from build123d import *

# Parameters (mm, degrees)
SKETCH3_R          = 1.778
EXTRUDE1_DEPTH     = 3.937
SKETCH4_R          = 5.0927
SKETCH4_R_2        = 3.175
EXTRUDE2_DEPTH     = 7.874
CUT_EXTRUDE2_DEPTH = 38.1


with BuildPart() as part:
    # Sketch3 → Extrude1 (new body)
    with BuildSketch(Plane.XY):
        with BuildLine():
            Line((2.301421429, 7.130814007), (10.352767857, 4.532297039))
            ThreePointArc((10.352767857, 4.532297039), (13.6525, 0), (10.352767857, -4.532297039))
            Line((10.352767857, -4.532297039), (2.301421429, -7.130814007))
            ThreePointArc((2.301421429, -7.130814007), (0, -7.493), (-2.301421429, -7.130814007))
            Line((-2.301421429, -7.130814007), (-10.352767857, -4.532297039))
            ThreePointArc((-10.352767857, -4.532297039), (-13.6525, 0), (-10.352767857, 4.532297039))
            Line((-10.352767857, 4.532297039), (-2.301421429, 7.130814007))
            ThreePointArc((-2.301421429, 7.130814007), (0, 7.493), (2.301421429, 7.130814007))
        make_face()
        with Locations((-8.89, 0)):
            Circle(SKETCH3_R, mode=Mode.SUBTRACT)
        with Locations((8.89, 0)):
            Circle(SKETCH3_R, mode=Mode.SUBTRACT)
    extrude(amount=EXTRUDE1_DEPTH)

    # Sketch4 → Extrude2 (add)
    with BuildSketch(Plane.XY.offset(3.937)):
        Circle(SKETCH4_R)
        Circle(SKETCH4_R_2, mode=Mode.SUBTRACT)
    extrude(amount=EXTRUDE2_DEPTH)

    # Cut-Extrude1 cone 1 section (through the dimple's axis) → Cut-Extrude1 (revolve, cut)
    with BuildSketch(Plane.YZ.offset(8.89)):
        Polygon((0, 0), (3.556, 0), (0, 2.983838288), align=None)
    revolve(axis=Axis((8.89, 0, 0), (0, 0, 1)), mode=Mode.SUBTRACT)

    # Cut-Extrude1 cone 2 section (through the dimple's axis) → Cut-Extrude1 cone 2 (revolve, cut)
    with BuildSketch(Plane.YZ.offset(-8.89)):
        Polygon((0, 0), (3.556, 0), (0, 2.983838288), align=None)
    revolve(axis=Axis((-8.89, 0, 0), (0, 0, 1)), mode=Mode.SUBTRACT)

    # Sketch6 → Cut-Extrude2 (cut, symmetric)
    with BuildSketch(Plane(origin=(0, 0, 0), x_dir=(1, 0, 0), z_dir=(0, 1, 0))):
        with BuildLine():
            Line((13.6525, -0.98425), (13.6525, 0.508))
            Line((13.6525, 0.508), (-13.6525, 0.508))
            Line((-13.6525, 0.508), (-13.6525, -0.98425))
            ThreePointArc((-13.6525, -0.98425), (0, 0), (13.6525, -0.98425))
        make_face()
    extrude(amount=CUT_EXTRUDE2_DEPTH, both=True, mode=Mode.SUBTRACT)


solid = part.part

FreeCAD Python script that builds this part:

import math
import FreeCAD as App
import Part
import Sketcher

V = App.Vector
Q = App.Units.Quantity

doc = App.newDocument("Part")
params = doc.addObject("Spreadsheet::Sheet", "Params")
for row, (alias, value) in enumerate([
    ("sketch1_diameter", "0.14 in"),
    ("sketch1_radius", "0.295 in"),
    ("sketch1_radius2", "0.1875 in"),
    ("pad1_length", "0.155 in"),
    ("sketch2_diameter", "0.25 in"),
    ("sketch2_diameter2", "0.401 in"),
    ("pad2_length", "0.31 in"),
    ("sketch3_width", "0.14 in"),
    ("groove_angle", "360 deg"),
    ("sketch4_width", "0.14 in"),
    ("groove2_angle", "360 deg"),
    ("sketch5_width", "1.075 in"),
    ("pocket1_length", "3 in"),
], start=1):
    params.set(f"A{row}", alias)
    params.set(f"B{row}", "=" + value)
    params.setAlias(f"B{row}", alias)

body = doc.addObject("PartDesign::Body", "Body")

sketch1 = body.newObject("Sketcher::SketchObject", "Sketch")
sketch1.AttachmentSupport = (doc.getObject("XY_Plane"), [""])
sketch1.MapMode = "FlatFace"
sketch1.addGeometry(Part.LineSegment(V(10.4, 4.5, 0), V(2.3, 7.1, 0)), False)
sketch1.addGeometry(Part.ArcOfCircle(Part.Circle(V(0, 0, 0), V(0, 0, 1), 7.5), math.radians(72), math.radians(108)), False)
sketch1.addGeometry(Part.LineSegment(V(-2.3, 7.1, 0), V(-10.4, 4.5, 0)), False)
sketch1.addGeometry(Part.ArcOfCircle(Part.Circle(V(-8.9, 0, 0), V(0, 0, 1), 4.8), math.radians(108), math.radians(252)), False)
sketch1.addGeometry(Part.LineSegment(V(-10.4, -4.5, 0), V(-2.3, -7.1, 0)), False)
sketch1.addGeometry(Part.ArcOfCircle(Part.Circle(V(0, 0, 0), V(0, 0, 1), 7.5), math.radians(-108), math.radians(-72)), False)
sketch1.addGeometry(Part.LineSegment(V(2.3, -7.1, 0), V(10.4, -4.5, 0)), False)
sketch1.addGeometry(Part.ArcOfCircle(Part.Circle(V(8.9, 0, 0), V(0, 0, 1), 4.8), math.radians(-72), math.radians(72)), False)
sketch1.addGeometry(Part.Circle(V(8.9, 0, 0), V(0, 0, 1), 1.8), False)
sketch1.addGeometry(Part.Circle(V(-8.9, 0, 0), V(0, 0, 1), 1.8), False)
sketch1.addConstraint(Sketcher.Constraint("Tangent", 0, 2, 1, 1))
sketch1.addConstraint(Sketcher.Constraint("Tangent", 1, 2, 2, 1))
sketch1.addConstraint(Sketcher.Constraint("Tangent", 2, 2, 3, 1))
sketch1.addConstraint(Sketcher.Constraint("Tangent", 3, 2, 4, 1))
sketch1.addConstraint(Sketcher.Constraint("Tangent", 4, 2, 5, 1))
sketch1.addConstraint(Sketcher.Constraint("Tangent", 5, 2, 6, 1))
sketch1.addConstraint(Sketcher.Constraint("Tangent", 6, 2, 7, 1))
sketch1.addConstraint(Sketcher.Constraint("Tangent", 7, 2, 0, 1))
sketch1.addConstraint(Sketcher.Constraint("Coincident", 1, 3, -1, 1))
sketch1.addConstraint(Sketcher.Constraint("Coincident", 5, 3, -1, 1))
sketch1.addConstraint(Sketcher.Constraint("Coincident", 8, 3, 7, 3))
sketch1.addConstraint(Sketcher.Constraint("Coincident", 9, 3, 3, 3))
sketch1.addConstraint(Sketcher.Constraint("Equal", 1, 5))
sketch1.addConstraint(Sketcher.Constraint("Equal", 3, 7))
sketch1.addConstraint(Sketcher.Constraint("Equal", 8, 9))
sketch1.addConstraint(Sketcher.Constraint("Symmetric", 3, 3, 7, 3, -1, 1))
sketch1.addConstraint(Sketcher.Constraint("PointOnObject", 3, 3, -1))
sketch1.addConstraint(Sketcher.Constraint("Diameter", 8, Q("0.14 in")))
sketch1.addConstraint(Sketcher.Constraint("Radius", 1, Q("0.295 in")))
sketch1.addConstraint(Sketcher.Constraint("Radius", 3, Q("0.1875 in")))
sketch1.addConstraint(Sketcher.Constraint("DistanceX", 3, 3, 7, 3, Q("0.7 in")))
sketch1.setExpression("Constraints[17]", "Params.sketch1_diameter")
sketch1.setExpression("Constraints[18]", "Params.sketch1_radius")
sketch1.setExpression("Constraints[19]", "Params.sketch1_radius2")
pad1 = body.newObject("PartDesign::Pad", "Pad")
pad1.Profile = sketch1
pad1.setExpression("Length", "Params.pad1_length")

sketch2 = body.newObject("Sketcher::SketchObject", "Sketch001")
sketch2.AttachmentSupport = (doc.getObject("XY_Plane"), [""])
sketch2.MapMode = "FlatFace"
sketch2.AttachmentOffset = App.Placement(V(0, 0, 0.155 * 25.4), App.Rotation())
sketch2.addGeometry(Part.Circle(V(0, 0, 0), V(0, 0, 1), 5.1), False)
sketch2.addGeometry(Part.Circle(V(0, 0, 0), V(0, 0, 1), 3.2), False)
sketch2.addConstraint(Sketcher.Constraint("Coincident", 0, 3, -1, 1))
sketch2.addConstraint(Sketcher.Constraint("Coincident", 1, 3, -1, 1))
sketch2.addConstraint(Sketcher.Constraint("Diameter", 1, Q("0.25 in")))
sketch2.addConstraint(Sketcher.Constraint("Diameter", 0, Q("0.401 in")))
sketch2.setExpression("Constraints[2]", "Params.sketch2_diameter")
sketch2.setExpression("Constraints[3]", "Params.sketch2_diameter2")
pad2 = body.newObject("PartDesign::Pad", "Pad001")
pad2.Profile = sketch2
pad2.setExpression("Length", "Params.pad2_length")

sketch3 = body.newObject("Sketcher::SketchObject", "Sketch002")
sketch3.AttachmentSupport = (doc.getObject("YZ_Plane"), [""])
sketch3.MapMode = "FlatFace"
sketch3.AttachmentOffset = App.Placement(V(0, 0, 0.35 * 25.4), App.Rotation())
sketch3.addGeometry(Part.LineSegment(V(0, 0, 0), V(3.6, 0, 0)), False)
sketch3.addGeometry(Part.LineSegment(V(3.6, 0, 0), V(0, 3, 0)), False)
sketch3.addGeometry(Part.LineSegment(V(0, 3, 0), V(0, 0, 0)), False)
sketch3.addConstraint(Sketcher.Constraint("Coincident", 0, 2, 1, 1))
sketch3.addConstraint(Sketcher.Constraint("Coincident", 1, 2, 2, 1))
sketch3.addConstraint(Sketcher.Constraint("Coincident", 2, 2, 0, 1))
sketch3.addConstraint(Sketcher.Constraint("Horizontal", 0))
sketch3.addConstraint(Sketcher.Constraint("Vertical", 2))
sketch3.addConstraint(Sketcher.Constraint("Coincident", 2, 2, -1, 1))
sketch3.addConstraint(Sketcher.Constraint("Angle", 1, Q("140 deg")))
sketch3.addConstraint(Sketcher.Constraint("DistanceX", 0, 1, 0, 2, Q("0.14 in")))
sketch3.setExpression("Constraints[7]", "Params.sketch3_width")
groove = body.newObject("PartDesign::Groove", "Groove")
groove.Profile = sketch3
groove.ReferenceAxis = (sketch3, ["V_Axis"])
groove.setExpression("Angle", "Params.groove_angle")

sketch4 = body.newObject("Sketcher::SketchObject", "Sketch003")
sketch4.AttachmentSupport = (doc.getObject("YZ_Plane"), [""])
sketch4.MapMode = "FlatFace"
sketch4.AttachmentOffset = App.Placement(V(0, 0, -0.35 * 25.4), App.Rotation())
sketch4.addGeometry(Part.LineSegment(V(0, 0, 0), V(3.6, 0, 0)), False)
sketch4.addGeometry(Part.LineSegment(V(3.6, 0, 0), V(0, 3, 0)), False)
sketch4.addGeometry(Part.LineSegment(V(0, 3, 0), V(0, 0, 0)), False)
sketch4.addConstraint(Sketcher.Constraint("Coincident", 0, 2, 1, 1))
sketch4.addConstraint(Sketcher.Constraint("Coincident", 1, 2, 2, 1))
sketch4.addConstraint(Sketcher.Constraint("Coincident", 2, 2, 0, 1))
sketch4.addConstraint(Sketcher.Constraint("Horizontal", 0))
sketch4.addConstraint(Sketcher.Constraint("Vertical", 2))
sketch4.addConstraint(Sketcher.Constraint("Coincident", 2, 2, -1, 1))
sketch4.addConstraint(Sketcher.Constraint("Angle", 1, Q("140 deg")))
sketch4.addConstraint(Sketcher.Constraint("DistanceX", 0, 1, 0, 2, Q("0.14 in")))
sketch4.setExpression("Constraints[7]", "Params.sketch4_width")
groove2 = body.newObject("PartDesign::Groove", "Groove001")
groove2.Profile = sketch4
groove2.ReferenceAxis = (sketch4, ["V_Axis"])
groove2.setExpression("Angle", "Params.groove2_angle")

sketch5 = body.newObject("Sketcher::SketchObject", "Sketch004")
sketch5.AttachmentSupport = (doc.getObject("XZ_Plane"), [""])
sketch5.MapMode = "FlatFace"
sketch5.addGeometry(Part.LineSegment(V(13.7, 1, 0), V(13.7, -0.5, 0)), False)
sketch5.addGeometry(Part.LineSegment(V(13.7, -0.5, 0), V(-13.7, -0.5, 0)), False)
sketch5.addGeometry(Part.LineSegment(V(-13.7, -0.5, 0), V(-13.7, 1, 0)), False)
sketch5.addGeometry(Part.ArcOfCircle(Part.Circle(V(0, 95.2, 0), V(0, 0, 1), 95.2), math.radians(-98.25), math.radians(-81.75)), False)
sketch5.addConstraint(Sketcher.Constraint("Coincident", 0, 2, 1, 1))
sketch5.addConstraint(Sketcher.Constraint("Coincident", 1, 2, 2, 1))
sketch5.addConstraint(Sketcher.Constraint("Coincident", 2, 2, 3, 1))
sketch5.addConstraint(Sketcher.Constraint("Coincident", 3, 2, 0, 1))
sketch5.addConstraint(Sketcher.Constraint("Vertical", 0))
sketch5.addConstraint(Sketcher.Constraint("Horizontal", 1))
sketch5.addConstraint(Sketcher.Constraint("Vertical", 2))
sketch5.addConstraint(Sketcher.Constraint("Symmetric", 2, 2, 3, 2, -2))
sketch5.addConstraint(Sketcher.Constraint("DistanceX", 1, 2, 1, 1, Q("1.075 in")))
sketch5.addConstraint(Sketcher.Constraint("DistanceY", 0, 2, -1, 1, Q("0.02 in")))
sketch5.addConstraint(Sketcher.Constraint("Radius", 3, Q("95.178819 mm")))
sketch5.addConstraint(Sketcher.Constraint("DistanceY", 0, 2, 0, 1, Q("1.49225 mm")))
sketch5.setExpression("Constraints[8]", "Params.sketch5_width")
pocket1 = body.newObject("PartDesign::Pocket", "Pocket")
pocket1.Profile = sketch5
pocket1.setExpression("Length", "Params.pocket1_length")
pocket1.Midplane = True

doc.recompute()
